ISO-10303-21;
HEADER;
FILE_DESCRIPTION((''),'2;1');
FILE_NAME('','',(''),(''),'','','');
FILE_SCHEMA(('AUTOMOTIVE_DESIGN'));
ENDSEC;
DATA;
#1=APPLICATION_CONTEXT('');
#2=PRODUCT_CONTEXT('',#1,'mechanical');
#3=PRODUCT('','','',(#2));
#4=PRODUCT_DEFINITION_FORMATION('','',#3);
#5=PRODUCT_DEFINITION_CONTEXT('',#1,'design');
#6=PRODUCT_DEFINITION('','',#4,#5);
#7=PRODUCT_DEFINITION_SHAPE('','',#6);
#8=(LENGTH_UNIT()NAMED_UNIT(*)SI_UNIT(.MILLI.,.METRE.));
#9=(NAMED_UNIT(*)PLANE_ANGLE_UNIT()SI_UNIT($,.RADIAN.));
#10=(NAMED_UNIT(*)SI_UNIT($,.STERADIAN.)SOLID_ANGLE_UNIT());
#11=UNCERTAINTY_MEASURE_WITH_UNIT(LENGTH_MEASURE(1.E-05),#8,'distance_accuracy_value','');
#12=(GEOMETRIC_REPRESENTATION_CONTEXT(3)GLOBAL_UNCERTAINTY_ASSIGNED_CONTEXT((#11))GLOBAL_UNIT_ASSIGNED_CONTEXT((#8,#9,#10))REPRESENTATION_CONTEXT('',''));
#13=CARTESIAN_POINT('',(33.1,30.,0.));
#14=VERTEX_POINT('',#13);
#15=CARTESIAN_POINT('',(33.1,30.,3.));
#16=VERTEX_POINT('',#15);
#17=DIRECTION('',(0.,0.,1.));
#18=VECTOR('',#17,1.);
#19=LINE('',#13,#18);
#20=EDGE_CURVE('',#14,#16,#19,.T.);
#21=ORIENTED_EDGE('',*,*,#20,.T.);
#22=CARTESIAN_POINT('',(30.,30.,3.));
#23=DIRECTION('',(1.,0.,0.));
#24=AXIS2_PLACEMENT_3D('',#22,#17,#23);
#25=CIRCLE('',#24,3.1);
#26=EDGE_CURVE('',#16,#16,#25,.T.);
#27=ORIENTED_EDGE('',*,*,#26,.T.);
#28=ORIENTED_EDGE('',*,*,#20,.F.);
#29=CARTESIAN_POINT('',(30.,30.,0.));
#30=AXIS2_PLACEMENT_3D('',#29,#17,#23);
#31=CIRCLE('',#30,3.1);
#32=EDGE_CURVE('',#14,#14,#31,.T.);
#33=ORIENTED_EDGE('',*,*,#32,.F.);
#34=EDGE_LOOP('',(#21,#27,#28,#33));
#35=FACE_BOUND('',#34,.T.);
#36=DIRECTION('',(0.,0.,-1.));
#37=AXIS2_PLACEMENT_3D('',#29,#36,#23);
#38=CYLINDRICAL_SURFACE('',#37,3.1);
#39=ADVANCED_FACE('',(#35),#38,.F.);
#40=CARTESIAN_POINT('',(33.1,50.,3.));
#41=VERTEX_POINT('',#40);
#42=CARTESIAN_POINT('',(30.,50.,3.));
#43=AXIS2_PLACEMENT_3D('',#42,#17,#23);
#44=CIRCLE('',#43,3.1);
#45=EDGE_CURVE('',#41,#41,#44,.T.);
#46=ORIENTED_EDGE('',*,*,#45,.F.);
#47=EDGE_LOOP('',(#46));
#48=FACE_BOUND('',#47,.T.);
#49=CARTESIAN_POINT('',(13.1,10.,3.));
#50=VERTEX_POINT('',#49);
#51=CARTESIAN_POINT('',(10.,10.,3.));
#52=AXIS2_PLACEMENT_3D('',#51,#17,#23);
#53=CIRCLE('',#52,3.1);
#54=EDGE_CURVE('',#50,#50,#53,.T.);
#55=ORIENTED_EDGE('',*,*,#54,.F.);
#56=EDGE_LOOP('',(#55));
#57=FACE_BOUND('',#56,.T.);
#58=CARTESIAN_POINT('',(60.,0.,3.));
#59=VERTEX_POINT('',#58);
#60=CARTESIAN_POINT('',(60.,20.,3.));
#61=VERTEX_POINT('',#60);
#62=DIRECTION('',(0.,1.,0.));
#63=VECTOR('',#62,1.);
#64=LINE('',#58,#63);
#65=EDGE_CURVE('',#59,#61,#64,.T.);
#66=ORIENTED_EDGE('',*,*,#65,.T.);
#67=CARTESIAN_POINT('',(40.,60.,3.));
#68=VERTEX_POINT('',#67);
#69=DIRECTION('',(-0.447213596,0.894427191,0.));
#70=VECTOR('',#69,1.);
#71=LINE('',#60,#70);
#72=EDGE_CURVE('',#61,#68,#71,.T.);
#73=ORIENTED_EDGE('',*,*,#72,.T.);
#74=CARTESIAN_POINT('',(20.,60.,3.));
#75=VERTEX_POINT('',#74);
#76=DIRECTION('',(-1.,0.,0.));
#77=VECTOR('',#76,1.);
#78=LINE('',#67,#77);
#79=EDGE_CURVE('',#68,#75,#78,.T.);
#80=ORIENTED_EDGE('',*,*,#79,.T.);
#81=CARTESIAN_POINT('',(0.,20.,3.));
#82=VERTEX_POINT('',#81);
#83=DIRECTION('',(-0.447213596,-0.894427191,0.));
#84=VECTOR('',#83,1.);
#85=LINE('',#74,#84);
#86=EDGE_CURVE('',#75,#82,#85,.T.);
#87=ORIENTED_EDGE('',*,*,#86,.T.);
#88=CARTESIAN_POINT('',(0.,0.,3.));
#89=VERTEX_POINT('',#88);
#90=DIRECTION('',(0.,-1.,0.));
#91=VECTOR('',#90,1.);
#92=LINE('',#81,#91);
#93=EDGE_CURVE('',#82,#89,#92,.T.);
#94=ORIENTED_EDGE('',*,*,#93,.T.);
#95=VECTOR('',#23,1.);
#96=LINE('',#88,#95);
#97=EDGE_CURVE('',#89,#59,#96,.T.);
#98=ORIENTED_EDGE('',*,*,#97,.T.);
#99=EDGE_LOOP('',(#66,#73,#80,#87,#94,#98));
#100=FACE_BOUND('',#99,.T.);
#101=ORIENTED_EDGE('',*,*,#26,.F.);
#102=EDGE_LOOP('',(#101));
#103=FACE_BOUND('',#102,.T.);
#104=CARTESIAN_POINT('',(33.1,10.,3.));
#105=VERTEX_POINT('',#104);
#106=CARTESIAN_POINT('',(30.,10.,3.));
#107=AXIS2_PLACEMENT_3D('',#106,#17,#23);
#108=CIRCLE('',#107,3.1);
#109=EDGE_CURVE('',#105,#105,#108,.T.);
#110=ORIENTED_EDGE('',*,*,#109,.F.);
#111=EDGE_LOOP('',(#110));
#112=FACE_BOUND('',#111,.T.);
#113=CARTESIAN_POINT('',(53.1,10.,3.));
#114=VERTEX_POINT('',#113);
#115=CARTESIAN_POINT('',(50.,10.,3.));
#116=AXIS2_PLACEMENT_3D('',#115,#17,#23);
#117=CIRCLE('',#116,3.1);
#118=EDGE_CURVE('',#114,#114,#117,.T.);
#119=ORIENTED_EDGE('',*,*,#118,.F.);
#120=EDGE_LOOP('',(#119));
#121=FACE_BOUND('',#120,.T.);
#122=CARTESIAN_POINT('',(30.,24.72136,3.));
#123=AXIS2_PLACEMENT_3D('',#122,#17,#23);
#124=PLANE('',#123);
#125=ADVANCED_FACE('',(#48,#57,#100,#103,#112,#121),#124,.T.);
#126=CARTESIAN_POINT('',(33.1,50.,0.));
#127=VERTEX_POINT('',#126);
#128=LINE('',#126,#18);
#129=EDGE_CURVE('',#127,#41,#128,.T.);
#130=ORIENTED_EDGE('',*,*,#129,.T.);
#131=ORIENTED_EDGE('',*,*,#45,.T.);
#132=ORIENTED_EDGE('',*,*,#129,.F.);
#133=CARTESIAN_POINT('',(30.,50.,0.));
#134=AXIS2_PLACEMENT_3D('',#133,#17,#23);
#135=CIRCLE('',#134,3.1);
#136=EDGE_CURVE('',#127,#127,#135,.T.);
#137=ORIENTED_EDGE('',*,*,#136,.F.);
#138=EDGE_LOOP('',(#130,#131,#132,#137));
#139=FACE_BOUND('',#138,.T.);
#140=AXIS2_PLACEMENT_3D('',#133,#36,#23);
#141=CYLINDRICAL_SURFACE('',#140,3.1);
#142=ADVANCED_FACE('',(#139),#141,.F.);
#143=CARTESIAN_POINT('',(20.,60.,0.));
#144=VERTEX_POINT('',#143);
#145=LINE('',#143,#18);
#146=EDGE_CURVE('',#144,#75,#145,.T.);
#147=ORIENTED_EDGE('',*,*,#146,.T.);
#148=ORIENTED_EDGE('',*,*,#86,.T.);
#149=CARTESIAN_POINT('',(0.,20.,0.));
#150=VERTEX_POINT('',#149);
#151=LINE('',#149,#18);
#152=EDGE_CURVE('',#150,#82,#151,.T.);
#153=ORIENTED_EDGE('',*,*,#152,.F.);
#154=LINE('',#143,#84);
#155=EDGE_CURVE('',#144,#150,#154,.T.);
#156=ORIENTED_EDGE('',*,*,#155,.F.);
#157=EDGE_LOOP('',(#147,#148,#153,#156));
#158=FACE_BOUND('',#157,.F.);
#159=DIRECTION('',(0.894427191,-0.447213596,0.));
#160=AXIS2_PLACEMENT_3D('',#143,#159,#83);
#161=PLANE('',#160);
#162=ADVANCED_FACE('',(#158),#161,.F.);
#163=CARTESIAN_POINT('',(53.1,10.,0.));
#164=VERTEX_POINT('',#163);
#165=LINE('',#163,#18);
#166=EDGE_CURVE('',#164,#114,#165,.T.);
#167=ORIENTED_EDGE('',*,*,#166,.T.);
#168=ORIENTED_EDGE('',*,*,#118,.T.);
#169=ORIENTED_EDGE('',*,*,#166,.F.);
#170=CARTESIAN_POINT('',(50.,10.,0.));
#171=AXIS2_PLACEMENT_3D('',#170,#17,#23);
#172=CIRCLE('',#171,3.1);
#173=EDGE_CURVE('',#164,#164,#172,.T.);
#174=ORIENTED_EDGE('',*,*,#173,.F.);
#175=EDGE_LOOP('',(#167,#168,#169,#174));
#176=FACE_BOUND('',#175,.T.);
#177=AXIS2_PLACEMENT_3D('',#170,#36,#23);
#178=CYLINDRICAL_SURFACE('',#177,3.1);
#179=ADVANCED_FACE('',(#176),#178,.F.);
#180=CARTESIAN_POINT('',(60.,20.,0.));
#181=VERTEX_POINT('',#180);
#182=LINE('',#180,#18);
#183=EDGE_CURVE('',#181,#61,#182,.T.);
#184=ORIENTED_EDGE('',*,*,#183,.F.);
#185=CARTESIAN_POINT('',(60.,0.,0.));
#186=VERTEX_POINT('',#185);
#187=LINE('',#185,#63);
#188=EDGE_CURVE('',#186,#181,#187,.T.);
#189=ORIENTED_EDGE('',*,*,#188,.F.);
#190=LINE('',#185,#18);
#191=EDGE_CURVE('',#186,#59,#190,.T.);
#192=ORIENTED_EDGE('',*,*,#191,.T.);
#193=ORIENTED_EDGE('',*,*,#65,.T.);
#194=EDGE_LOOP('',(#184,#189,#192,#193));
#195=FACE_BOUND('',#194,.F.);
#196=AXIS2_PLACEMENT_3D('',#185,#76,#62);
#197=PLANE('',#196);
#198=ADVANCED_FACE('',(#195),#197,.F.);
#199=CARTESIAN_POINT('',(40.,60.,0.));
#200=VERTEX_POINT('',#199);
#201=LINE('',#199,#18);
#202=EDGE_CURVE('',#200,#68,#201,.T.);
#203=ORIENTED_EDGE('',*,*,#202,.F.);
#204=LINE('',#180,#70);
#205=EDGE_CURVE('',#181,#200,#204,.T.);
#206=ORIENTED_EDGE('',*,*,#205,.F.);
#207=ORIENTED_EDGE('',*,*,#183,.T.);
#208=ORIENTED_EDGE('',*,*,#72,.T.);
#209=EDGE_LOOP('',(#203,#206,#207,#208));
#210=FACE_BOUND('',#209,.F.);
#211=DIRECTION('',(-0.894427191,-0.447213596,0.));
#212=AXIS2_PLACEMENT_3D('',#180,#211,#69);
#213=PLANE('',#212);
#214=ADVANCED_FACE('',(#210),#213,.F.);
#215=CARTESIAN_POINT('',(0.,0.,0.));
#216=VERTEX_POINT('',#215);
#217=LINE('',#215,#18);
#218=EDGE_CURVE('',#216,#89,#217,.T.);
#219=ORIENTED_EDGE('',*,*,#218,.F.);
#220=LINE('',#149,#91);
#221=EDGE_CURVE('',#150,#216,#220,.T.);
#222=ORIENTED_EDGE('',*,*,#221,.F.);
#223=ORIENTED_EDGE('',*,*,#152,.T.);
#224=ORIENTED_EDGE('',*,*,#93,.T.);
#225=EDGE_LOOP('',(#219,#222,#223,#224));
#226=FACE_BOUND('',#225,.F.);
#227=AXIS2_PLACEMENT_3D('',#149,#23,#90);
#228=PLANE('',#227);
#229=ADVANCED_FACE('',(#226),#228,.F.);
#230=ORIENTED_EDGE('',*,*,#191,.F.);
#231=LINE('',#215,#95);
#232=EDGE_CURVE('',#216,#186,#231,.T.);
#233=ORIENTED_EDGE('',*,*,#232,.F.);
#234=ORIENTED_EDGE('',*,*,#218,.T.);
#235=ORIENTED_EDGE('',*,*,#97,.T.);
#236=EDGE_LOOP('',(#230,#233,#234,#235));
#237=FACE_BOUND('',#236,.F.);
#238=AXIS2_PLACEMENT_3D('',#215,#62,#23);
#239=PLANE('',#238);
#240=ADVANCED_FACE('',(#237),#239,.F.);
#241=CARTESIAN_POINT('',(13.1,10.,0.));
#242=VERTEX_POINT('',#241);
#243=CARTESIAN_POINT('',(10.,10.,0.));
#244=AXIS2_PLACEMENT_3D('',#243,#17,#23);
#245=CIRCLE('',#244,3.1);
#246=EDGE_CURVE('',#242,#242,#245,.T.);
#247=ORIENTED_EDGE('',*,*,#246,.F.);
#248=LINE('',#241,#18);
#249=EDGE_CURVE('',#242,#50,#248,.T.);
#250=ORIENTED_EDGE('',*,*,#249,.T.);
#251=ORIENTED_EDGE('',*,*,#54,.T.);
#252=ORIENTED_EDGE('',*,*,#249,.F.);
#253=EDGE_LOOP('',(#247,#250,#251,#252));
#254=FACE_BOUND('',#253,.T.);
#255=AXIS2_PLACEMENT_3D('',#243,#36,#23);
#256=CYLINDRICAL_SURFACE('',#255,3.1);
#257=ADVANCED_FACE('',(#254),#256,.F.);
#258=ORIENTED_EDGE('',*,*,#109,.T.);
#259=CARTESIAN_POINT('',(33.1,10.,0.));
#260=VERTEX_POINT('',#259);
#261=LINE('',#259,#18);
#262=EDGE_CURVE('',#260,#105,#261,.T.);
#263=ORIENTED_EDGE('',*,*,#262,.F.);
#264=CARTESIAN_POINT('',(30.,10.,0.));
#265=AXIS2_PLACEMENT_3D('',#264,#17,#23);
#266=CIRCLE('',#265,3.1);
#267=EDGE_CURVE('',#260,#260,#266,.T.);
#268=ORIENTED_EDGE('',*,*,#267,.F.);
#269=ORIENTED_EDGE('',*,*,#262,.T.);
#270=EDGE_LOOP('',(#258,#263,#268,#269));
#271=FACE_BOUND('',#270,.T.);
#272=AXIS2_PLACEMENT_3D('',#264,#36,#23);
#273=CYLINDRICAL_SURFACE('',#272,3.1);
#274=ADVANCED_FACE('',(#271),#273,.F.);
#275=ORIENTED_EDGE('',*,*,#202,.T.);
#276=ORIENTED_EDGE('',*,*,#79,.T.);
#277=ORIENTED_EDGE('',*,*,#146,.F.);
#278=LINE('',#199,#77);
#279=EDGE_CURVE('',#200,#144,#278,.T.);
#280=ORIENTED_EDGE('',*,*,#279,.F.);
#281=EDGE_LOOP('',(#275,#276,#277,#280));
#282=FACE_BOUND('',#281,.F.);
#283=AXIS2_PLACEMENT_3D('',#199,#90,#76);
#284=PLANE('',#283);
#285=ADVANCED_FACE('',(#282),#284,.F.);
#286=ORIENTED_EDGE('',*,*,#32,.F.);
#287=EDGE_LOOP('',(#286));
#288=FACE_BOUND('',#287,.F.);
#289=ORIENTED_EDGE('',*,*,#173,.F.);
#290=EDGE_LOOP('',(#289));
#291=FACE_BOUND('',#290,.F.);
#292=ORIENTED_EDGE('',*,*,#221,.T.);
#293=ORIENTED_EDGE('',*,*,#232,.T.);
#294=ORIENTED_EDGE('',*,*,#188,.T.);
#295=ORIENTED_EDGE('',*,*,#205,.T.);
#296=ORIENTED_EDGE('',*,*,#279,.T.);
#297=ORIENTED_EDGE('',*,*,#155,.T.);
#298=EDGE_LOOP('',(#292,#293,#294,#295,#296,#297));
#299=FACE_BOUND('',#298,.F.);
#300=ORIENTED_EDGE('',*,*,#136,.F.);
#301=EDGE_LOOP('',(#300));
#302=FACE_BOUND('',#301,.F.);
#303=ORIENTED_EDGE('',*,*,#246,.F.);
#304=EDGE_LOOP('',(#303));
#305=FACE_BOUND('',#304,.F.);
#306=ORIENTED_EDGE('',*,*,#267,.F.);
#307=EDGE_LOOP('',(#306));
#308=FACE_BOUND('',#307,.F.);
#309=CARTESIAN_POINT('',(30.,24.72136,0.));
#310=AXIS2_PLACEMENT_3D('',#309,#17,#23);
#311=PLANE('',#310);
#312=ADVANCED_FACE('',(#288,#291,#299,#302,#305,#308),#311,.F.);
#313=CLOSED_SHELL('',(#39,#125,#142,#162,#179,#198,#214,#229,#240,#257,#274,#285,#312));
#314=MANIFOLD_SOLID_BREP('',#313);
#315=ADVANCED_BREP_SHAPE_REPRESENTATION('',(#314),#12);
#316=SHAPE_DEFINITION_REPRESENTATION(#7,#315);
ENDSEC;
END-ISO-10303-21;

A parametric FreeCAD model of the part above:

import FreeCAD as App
import Part
import Sketcher

V = App.Vector
Q = App.Units.Quantity


def add_polygon(sketch, points):
    """Adds a closed chain of lines whose ends are joined by coincident constraints."""
    first, n = sketch.GeometryCount, len(points)
    for a, b in zip(points, points[1:] + points[:1]):
        sketch.addGeometry(Part.LineSegment(App.Vector(*a, 0), App.Vector(*b, 0)), False)
    for i in range(n):
        sketch.addConstraint(Sketcher.Constraint("Coincident", first + i, 2, first + (i + 1) % n, 1))

doc = App.newDocument("Part")
body = doc.addObject("PartDesign::Body", "Body")

sketch1 = body.newObject("Sketcher::SketchObject", "Sketch")
sketch1.AttachmentSupport = (doc.getObject("XY_Plane"), [""])
sketch1.MapMode = "FlatFace"
add_polygon(sketch1, [(0, 0), (60, 0), (60, 20), (40, 60), (20, 60), (0, 20)])
sketch1.addGeometry(Part.Circle(V(10, 10, 0), V(0, 0, 1), 3.1), False)
sketch1.addGeometry(Part.Circle(V(30, 10, 0), V(0, 0, 1), 3.1), False)
sketch1.addGeometry(Part.Circle(V(50, 10, 0), V(0, 0, 1), 3.1), False)
sketch1.addGeometry(Part.Circle(V(30, 30, 0), V(0, 0, 1), 3.1), False)
sketch1.addGeometry(Part.Circle(V(30, 50, 0), V(0, 0, 1), 3.1), False)
sketch1.addConstraint(Sketcher.Constraint("Horizontal", 0))
sketch1.addConstraint(Sketcher.Constraint("Vertical", 1))
sketch1.addConstraint(Sketcher.Constraint("Horizontal", 3))
sketch1.addConstraint(Sketcher.Constraint("Vertical", 5))
sketch1.addConstraint(Sketcher.Constraint("Coincident", 5, 2, -1, 1))
sketch1.addConstraint(Sketcher.Constraint("Equal", 6, 7))
sketch1.addConstraint(Sketcher.Constraint("Equal", 7, 8))
sketch1.addConstraint(Sketcher.Constraint("Equal", 8, 9))
sketch1.addConstraint(Sketcher.Constraint("Equal", 9, 10))
sketch1.addConstraint(Sketcher.Constraint("Horizontal", 6, 3, 7, 3))
sketch1.addConstraint(Sketcher.Constraint("Horizontal", 7, 3, 8, 3))
sketch1.addConstraint(Sketcher.Constraint("Horizontal", 1, 2, 4, 2))
sketch1.addConstraint(Sketcher.Constraint("Vertical", 7, 3, 9, 3))
sketch1.addConstraint(Sketcher.Constraint("Vertical", 9, 3, 10, 3))
sketch1.addConstraint(Sketcher.Constraint("Equal", 3, 1))
sketch1.addConstraint(Sketcher.Constraint("Equal", 2, 4))
sketch1.addConstraint(Sketcher.Constraint("Diameter", 6, Q("6.2 mm")))
sketch1.addConstraint(Sketcher.Constraint("DistanceX", 0, 1, 0, 2, Q("60 mm")))
sketch1.addConstraint(Sketcher.Constraint("DistanceX", 3, 2, 3, 1, Q("20 mm")))
sketch1.addConstraint(Sketcher.Constraint("DistanceX", -1, 1, 6, 3, Q("10 mm")))
sketch1.addConstraint(Sketcher.Constraint("DistanceY", -1, 1, 6, 3, Q("10 mm")))
sketch1.addConstraint(Sketcher.Constraint("DistanceX", -1, 1, 7, 3, Q("30 mm")))
sketch1.addConstraint(Sketcher.Constraint("DistanceX", -1, 1, 8, 3, Q("50 mm")))
sketch1.addConstraint(Sketcher.Constraint("DistanceY", -1, 1, 9, 3, Q("30 mm")))
sketch1.addConstraint(Sketcher.Constraint("DistanceY", -1, 1, 10, 3, Q("50 mm")))
sketch1.addConstraint(Sketcher.Constraint("DistanceY", -1, 1, 2, 2, Q("60 mm")))
pad1 = body.newObject("PartDesign::Pad", "Pad")
pad1.Profile = sketch1
pad1.Length = 3

doc.recompute()
